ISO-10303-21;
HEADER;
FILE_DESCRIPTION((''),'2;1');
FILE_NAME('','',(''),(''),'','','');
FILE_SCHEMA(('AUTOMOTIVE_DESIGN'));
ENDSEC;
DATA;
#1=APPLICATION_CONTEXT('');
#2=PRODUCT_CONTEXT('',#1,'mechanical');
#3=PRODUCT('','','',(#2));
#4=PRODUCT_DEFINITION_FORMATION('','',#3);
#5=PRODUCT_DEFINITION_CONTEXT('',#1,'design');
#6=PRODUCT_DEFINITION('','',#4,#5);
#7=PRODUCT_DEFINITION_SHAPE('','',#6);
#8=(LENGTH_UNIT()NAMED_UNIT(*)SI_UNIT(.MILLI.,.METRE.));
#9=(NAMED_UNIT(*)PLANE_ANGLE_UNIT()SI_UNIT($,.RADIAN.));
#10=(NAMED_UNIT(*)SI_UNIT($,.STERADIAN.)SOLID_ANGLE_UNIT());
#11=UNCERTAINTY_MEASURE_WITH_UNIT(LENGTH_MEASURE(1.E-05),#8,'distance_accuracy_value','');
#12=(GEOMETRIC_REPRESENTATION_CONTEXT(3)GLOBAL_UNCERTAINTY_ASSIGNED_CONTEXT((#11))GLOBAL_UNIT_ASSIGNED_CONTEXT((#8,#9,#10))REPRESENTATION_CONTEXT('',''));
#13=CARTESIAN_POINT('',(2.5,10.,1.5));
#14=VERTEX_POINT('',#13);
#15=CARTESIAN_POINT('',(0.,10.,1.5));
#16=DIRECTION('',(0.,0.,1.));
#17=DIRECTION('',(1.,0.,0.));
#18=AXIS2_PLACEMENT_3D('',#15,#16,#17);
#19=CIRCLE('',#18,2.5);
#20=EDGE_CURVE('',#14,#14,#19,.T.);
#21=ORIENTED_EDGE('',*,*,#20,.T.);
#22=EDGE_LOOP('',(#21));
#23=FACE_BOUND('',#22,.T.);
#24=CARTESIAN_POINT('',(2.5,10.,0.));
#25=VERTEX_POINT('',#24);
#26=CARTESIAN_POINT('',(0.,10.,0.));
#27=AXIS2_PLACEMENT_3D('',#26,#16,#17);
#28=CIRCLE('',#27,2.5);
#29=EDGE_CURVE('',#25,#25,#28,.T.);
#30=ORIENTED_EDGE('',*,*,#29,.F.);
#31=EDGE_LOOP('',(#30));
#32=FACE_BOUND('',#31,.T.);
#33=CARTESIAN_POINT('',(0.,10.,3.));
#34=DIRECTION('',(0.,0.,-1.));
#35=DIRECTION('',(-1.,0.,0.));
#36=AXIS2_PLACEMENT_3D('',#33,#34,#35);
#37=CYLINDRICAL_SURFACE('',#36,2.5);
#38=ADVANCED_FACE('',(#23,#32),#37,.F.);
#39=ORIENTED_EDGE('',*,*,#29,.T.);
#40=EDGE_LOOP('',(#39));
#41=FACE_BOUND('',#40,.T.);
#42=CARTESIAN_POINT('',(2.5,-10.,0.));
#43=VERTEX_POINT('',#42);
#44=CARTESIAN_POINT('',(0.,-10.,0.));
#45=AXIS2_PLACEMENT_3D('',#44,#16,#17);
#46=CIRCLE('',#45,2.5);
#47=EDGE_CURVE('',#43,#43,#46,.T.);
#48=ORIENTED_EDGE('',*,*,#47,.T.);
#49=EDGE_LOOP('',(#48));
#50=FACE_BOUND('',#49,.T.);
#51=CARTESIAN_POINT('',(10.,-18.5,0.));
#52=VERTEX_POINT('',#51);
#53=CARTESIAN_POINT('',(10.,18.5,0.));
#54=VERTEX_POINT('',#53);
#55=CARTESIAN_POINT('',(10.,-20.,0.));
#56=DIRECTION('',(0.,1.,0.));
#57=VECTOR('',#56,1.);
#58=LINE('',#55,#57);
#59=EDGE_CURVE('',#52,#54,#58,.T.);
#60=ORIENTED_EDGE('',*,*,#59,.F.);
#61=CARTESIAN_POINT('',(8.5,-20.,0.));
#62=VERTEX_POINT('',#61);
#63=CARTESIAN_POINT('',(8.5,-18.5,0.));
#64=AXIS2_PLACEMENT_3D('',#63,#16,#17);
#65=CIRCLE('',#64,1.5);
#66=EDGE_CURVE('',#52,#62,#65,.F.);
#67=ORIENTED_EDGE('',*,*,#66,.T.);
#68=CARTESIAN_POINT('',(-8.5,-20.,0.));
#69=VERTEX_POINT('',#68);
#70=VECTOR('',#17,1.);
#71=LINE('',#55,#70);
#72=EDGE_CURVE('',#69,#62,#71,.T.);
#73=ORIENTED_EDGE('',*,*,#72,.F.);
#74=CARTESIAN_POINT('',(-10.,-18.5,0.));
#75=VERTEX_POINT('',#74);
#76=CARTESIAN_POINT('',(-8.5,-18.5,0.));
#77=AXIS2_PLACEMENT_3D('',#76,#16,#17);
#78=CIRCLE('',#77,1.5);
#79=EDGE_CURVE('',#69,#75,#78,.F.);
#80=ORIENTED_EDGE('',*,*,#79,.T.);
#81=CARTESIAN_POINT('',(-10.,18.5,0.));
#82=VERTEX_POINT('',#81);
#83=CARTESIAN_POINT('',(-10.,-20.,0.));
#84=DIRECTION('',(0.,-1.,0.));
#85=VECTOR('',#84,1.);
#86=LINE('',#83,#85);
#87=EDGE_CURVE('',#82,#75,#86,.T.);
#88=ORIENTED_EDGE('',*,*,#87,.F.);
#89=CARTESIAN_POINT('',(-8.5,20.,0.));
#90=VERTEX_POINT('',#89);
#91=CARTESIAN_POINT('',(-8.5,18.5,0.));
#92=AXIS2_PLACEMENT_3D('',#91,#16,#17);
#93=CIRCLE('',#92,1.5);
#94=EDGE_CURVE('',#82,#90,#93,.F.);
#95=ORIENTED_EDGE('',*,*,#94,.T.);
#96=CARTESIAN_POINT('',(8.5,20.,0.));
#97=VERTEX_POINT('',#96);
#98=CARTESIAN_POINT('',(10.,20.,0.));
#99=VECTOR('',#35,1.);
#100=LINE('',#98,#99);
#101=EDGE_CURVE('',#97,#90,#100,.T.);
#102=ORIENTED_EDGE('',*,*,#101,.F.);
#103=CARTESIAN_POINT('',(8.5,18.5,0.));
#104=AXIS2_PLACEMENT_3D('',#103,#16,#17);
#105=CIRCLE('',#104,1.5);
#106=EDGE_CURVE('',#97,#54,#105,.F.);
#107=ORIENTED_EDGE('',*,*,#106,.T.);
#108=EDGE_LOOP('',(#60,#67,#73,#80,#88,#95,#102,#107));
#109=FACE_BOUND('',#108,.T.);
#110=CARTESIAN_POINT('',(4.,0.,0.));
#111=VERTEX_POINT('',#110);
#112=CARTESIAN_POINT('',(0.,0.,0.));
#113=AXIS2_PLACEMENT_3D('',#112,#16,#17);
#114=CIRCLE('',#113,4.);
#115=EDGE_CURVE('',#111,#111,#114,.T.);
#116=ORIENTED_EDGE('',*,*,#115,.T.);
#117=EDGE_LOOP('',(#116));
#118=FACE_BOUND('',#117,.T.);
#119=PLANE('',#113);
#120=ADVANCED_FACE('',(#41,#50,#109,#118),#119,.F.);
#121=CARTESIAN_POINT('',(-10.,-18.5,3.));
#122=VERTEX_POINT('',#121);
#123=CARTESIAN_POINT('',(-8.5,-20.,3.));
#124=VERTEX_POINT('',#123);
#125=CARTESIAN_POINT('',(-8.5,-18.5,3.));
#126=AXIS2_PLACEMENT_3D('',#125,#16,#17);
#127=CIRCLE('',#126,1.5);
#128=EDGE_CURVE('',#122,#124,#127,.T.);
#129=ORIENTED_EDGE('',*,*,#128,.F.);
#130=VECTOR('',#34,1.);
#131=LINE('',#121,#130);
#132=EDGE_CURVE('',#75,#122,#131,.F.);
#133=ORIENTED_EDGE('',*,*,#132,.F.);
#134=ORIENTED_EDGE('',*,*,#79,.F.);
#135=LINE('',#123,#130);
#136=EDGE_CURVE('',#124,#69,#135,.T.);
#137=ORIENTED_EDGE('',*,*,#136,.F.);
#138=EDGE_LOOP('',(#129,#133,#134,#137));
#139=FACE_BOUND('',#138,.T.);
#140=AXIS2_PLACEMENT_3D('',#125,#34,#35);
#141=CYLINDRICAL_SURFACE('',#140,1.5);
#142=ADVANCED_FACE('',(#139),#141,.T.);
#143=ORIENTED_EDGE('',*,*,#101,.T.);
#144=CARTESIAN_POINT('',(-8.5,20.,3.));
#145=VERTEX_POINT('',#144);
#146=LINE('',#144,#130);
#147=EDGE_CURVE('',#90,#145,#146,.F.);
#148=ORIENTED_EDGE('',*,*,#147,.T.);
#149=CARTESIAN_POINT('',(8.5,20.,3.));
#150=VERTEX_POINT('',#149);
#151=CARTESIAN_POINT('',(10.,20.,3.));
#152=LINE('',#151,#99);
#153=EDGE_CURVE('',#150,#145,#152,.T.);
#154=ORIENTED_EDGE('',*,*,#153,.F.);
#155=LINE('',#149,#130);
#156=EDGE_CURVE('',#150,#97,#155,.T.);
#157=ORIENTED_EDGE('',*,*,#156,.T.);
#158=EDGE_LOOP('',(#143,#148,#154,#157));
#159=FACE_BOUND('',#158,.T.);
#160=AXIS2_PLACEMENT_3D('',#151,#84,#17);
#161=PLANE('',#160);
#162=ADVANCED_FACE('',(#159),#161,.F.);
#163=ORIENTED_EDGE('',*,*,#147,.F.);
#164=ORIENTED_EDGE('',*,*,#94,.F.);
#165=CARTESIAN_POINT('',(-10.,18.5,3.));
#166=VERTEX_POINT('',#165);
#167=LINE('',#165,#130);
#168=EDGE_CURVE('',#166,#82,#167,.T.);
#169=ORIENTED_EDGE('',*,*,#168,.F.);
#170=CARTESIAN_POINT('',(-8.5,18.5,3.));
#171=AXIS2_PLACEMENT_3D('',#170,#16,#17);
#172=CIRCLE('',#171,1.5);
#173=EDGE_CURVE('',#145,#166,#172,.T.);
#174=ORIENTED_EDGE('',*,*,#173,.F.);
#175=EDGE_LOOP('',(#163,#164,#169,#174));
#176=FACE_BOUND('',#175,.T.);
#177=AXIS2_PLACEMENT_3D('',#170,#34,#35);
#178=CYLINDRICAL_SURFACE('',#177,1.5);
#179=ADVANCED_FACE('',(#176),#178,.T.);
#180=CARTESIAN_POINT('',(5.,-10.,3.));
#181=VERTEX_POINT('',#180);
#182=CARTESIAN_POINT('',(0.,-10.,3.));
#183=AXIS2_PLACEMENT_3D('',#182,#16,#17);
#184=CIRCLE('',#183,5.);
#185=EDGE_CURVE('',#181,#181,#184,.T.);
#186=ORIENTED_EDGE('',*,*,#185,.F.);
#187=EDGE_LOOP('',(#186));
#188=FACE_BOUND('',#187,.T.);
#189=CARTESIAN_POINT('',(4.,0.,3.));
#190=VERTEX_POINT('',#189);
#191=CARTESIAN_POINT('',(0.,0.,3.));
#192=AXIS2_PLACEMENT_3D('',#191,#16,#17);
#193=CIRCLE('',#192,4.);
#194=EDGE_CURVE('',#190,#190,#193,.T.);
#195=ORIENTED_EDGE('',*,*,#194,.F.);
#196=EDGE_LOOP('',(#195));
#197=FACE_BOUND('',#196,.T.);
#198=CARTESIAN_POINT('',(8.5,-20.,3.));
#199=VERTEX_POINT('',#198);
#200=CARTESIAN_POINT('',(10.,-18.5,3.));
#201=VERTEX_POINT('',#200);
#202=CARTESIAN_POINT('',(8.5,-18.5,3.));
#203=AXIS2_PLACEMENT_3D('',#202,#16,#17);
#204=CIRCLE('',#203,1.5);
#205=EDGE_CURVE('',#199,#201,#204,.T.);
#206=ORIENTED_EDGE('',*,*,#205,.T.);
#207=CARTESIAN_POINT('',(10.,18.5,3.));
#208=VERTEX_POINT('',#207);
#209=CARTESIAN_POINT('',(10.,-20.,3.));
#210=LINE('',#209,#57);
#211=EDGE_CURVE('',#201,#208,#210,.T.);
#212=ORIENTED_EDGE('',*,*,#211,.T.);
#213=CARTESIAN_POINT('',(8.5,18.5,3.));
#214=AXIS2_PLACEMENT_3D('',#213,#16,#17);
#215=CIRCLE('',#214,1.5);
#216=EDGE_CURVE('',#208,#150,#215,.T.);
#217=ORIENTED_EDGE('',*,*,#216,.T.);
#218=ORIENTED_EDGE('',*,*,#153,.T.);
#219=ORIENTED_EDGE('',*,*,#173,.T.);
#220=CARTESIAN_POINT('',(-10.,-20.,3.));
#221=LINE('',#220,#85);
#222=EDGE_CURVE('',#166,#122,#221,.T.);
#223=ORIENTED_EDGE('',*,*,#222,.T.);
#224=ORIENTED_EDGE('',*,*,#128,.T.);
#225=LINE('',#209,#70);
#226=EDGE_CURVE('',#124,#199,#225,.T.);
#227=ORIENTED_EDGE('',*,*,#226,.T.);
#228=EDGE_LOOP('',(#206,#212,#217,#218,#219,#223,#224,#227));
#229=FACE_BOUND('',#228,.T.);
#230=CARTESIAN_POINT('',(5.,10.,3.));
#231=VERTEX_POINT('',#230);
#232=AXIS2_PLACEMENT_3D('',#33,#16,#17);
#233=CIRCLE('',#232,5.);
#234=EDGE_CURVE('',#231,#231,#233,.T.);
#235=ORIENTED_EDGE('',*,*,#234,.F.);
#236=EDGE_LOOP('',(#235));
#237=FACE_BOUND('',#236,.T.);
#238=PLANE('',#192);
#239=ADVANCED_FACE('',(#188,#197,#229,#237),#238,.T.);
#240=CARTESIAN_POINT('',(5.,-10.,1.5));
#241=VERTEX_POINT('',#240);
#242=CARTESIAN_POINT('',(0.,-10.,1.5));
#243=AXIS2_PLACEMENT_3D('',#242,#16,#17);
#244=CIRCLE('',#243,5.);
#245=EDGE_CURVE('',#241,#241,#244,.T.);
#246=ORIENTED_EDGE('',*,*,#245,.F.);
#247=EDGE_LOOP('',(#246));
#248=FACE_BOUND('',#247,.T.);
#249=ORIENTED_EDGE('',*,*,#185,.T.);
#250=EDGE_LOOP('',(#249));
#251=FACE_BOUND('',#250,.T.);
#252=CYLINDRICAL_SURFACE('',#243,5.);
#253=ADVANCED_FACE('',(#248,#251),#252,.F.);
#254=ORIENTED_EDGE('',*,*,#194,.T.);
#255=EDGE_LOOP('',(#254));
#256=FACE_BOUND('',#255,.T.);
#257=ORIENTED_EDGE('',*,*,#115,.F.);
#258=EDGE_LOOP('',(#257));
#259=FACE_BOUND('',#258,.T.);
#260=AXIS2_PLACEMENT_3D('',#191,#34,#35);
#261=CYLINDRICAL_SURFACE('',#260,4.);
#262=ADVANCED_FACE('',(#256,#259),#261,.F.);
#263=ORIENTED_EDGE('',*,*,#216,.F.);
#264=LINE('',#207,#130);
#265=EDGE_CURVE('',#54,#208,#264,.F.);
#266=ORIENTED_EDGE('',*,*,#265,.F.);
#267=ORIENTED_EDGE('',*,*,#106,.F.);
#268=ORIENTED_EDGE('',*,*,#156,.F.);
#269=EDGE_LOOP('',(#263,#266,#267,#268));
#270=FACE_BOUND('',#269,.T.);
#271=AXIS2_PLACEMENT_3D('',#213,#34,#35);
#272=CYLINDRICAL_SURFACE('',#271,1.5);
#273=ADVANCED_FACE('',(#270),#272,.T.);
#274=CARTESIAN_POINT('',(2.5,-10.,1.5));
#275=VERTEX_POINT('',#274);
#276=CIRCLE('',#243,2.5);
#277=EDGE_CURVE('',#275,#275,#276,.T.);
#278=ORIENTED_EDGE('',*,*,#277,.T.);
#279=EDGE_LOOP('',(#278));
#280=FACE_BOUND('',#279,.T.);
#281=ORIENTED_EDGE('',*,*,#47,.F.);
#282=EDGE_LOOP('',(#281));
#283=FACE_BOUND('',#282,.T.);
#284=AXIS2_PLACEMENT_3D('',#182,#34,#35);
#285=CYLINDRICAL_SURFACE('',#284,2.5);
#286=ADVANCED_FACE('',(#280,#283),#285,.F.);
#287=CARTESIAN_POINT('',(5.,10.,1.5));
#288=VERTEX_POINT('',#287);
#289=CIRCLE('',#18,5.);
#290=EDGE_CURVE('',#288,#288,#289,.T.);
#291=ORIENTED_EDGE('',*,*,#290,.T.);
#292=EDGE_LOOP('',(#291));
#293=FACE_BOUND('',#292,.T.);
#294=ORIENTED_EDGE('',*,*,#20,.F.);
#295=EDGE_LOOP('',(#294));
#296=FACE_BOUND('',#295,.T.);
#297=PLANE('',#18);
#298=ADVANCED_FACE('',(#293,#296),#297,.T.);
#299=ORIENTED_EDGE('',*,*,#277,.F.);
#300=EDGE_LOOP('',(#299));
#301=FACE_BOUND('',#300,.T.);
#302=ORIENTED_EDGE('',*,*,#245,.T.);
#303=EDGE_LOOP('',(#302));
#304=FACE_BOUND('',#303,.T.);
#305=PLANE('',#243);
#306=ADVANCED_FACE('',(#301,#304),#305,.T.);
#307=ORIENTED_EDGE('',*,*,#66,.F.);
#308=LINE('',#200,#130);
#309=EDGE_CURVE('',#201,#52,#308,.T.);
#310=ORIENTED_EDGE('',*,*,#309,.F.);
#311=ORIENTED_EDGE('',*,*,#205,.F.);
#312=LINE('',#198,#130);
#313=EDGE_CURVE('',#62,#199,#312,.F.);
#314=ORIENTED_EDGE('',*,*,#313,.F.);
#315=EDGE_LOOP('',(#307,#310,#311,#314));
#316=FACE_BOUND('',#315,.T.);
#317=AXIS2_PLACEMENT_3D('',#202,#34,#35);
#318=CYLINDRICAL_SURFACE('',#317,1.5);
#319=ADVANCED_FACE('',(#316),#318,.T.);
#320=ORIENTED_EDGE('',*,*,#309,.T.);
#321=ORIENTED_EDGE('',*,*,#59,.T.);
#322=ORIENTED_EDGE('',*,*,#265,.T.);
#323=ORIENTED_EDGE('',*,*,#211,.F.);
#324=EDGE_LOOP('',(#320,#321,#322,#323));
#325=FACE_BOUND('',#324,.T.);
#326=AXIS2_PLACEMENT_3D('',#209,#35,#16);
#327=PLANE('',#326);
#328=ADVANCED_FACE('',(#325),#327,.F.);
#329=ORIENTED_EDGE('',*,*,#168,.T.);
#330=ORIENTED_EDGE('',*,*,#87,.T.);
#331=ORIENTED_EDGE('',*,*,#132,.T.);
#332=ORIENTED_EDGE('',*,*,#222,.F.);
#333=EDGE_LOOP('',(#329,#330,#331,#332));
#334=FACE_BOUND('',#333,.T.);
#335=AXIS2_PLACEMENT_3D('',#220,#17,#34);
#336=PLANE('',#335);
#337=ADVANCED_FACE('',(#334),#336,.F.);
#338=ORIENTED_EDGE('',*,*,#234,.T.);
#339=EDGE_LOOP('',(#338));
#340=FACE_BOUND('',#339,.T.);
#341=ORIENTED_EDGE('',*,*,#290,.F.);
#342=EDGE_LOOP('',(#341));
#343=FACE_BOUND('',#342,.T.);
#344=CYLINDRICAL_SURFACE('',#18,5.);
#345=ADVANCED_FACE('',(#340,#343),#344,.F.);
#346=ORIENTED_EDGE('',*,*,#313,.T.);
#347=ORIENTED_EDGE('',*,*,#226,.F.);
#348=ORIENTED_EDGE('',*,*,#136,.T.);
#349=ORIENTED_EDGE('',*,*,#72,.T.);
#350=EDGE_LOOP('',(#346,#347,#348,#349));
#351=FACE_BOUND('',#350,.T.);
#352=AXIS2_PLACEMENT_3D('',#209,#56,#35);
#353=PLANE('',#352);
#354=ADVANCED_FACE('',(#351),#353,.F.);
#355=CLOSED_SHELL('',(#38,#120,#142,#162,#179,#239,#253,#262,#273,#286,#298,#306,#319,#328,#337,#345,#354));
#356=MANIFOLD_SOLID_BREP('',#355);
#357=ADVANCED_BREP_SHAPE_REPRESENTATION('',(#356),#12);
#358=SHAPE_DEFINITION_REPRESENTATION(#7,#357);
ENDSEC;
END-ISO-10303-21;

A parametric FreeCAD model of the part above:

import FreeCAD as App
import Part
import Sketcher


def edges_at(feature, points):
    """Names of the edges that pass closest to the given points."""
    edges = feature.Shape.Edges
    near = lambda p: min(range(len(edges)), key=lambda i: edges[i].distToShape(Part.Vertex(*p))[0])
    return sorted({f"Edge{near(p) + 1}" for p in points})

doc = App.newDocument("Part")
body = doc.addObject("PartDesign::Body", "Body")

sketch1 = doc.addObject("Sketcher::SketchObject", "Sketch")
body.addObject(sketch1)
sketch1.AttachmentSupport = (doc.XY_Plane, [""])
sketch1.MapMode = "FlatFace"
sketch1.addGeometry(Part.LineSegment(App.Vector(-10, 20, 0), App.Vector(-10, -20, 0)), False)
sketch1.addGeometry(Part.LineSegment(App.Vector(-10, -20, 0), App.Vector(10, -20, 0)), False)
sketch1.addGeometry(Part.LineSegment(App.Vector(10, -20, 0), App.Vector(10, 20, 0)), False)
sketch1.addGeometry(Part.LineSegment(App.Vector(10, 20, 0), App.Vector(-10, 20, 0)), False)
sketch1.addGeometry(Part.Circle(App.Vector(0, -10, 0), App.Vector(0, 0, 1), 2.5), False)
sketch1.addGeometry(Part.Circle(App.Vector(0, 0, 0), App.Vector(0, 0, 1), 4), False)
sketch1.addGeometry(Part.Circle(App.Vector(0, 10, 0), App.Vector(0, 0, 1), 2.5), False)
sketch1.addConstraint(Sketcher.Constraint("Coincident", 0, 2, 1, 1))
sketch1.addConstraint(Sketcher.Constraint("Coincident", 1, 2, 2, 1))
sketch1.addConstraint(Sketcher.Constraint("Coincident", 2, 2, 3, 1))
sketch1.addConstraint(Sketcher.Constraint("Coincident", 3, 2, 0, 1))
sketch1.addConstraint(Sketcher.Constraint("Vertical", 0))
sketch1.addConstraint(Sketcher.Constraint("Horizontal", 1))
sketch1.addConstraint(Sketcher.Constraint("Vertical", 2))
sketch1.addConstraint(Sketcher.Constraint("Horizontal", 3))
sketch1.addConstraint(Sketcher.Constraint("Coincident", 5, 3, -1, 1))
sketch1.addConstraint(Sketcher.Constraint("Equal", 4, 6))
sketch1.addConstraint(Sketcher.Constraint("Symmetric", 4, 3, 6, 3, -1, 1))
sketch1.addConstraint(Sketcher.Constraint("Symmetric", 0, 2, 2, 2, -1, 1))
sketch1.addConstraint(Sketcher.Constraint("PointOnObject", 4, 3, -2))
sketch1.addConstraint(Sketcher.Constraint("Diameter", 4, 5.0))
sketch1.addConstraint(Sketcher.Constraint("Diameter", 5, 8.0))
sketch1.addConstraint(Sketcher.Constraint("DistanceX", 1, 1, 1, 2, 20.0))
sketch1.addConstraint(Sketcher.Constraint("DistanceY", 0, 2, 0, 1, 40.0))
sketch1.addConstraint(Sketcher.Constraint("DistanceY", 4, 3, -1, 1, 10.0))
pad1 = doc.addObject("PartDesign::Pad", "Pad")
body.addObject(pad1)
pad1.Profile = sketch1
pad1.Length = 3

sketch2 = doc.addObject("Sketcher::SketchObject", "Sketch001")
body.addObject(sketch2)
sketch2.AttachmentSupport = (doc.XY_Plane, [""])
sketch2.MapMode = "FlatFace"
sketch2.AttachmentOffset = App.Placement(App.Vector(0, 0, 3), App.Rotation())
sketch2.addGeometry(Part.Circle(App.Vector(0, -10, 0), App.Vector(0, 0, 1), 5), False)
sketch2.addGeometry(Part.Circle(App.Vector(0, 10, 0), App.Vector(0, 0, 1), 5), False)
sketch2.addConstraint(Sketcher.Constraint("Equal", 0, 1))
sketch2.addConstraint(Sketcher.Constraint("Symmetric", 0, 3, 1, 3, -1, 1))
sketch2.addConstraint(Sketcher.Constraint("PointOnObject", 0, 3, -2))
sketch2.addConstraint(Sketcher.Constraint("Diameter", 0, 10.0))
sketch2.addConstraint(Sketcher.Constraint("DistanceY", 0, 3, -1, 1, 10.0))
pocket1 = doc.addObject("PartDesign::Pocket", "Pocket")
body.addObject(pocket1)
pocket1.Profile = sketch2
pocket1.Length = 1.5
doc.recompute()

fillet = doc.addObject("PartDesign::Fillet", "Fillet")
body.addObject(fillet)
fillet.Base = (pocket1, edges_at(pocket1, [
    (-10, 20, 1.5),
    (10, 20, 1.5),
    (10, -20, 1.5),
    (-10, -20, 1.5),
]))
fillet.Radius = 1.5

doc.recompute()
